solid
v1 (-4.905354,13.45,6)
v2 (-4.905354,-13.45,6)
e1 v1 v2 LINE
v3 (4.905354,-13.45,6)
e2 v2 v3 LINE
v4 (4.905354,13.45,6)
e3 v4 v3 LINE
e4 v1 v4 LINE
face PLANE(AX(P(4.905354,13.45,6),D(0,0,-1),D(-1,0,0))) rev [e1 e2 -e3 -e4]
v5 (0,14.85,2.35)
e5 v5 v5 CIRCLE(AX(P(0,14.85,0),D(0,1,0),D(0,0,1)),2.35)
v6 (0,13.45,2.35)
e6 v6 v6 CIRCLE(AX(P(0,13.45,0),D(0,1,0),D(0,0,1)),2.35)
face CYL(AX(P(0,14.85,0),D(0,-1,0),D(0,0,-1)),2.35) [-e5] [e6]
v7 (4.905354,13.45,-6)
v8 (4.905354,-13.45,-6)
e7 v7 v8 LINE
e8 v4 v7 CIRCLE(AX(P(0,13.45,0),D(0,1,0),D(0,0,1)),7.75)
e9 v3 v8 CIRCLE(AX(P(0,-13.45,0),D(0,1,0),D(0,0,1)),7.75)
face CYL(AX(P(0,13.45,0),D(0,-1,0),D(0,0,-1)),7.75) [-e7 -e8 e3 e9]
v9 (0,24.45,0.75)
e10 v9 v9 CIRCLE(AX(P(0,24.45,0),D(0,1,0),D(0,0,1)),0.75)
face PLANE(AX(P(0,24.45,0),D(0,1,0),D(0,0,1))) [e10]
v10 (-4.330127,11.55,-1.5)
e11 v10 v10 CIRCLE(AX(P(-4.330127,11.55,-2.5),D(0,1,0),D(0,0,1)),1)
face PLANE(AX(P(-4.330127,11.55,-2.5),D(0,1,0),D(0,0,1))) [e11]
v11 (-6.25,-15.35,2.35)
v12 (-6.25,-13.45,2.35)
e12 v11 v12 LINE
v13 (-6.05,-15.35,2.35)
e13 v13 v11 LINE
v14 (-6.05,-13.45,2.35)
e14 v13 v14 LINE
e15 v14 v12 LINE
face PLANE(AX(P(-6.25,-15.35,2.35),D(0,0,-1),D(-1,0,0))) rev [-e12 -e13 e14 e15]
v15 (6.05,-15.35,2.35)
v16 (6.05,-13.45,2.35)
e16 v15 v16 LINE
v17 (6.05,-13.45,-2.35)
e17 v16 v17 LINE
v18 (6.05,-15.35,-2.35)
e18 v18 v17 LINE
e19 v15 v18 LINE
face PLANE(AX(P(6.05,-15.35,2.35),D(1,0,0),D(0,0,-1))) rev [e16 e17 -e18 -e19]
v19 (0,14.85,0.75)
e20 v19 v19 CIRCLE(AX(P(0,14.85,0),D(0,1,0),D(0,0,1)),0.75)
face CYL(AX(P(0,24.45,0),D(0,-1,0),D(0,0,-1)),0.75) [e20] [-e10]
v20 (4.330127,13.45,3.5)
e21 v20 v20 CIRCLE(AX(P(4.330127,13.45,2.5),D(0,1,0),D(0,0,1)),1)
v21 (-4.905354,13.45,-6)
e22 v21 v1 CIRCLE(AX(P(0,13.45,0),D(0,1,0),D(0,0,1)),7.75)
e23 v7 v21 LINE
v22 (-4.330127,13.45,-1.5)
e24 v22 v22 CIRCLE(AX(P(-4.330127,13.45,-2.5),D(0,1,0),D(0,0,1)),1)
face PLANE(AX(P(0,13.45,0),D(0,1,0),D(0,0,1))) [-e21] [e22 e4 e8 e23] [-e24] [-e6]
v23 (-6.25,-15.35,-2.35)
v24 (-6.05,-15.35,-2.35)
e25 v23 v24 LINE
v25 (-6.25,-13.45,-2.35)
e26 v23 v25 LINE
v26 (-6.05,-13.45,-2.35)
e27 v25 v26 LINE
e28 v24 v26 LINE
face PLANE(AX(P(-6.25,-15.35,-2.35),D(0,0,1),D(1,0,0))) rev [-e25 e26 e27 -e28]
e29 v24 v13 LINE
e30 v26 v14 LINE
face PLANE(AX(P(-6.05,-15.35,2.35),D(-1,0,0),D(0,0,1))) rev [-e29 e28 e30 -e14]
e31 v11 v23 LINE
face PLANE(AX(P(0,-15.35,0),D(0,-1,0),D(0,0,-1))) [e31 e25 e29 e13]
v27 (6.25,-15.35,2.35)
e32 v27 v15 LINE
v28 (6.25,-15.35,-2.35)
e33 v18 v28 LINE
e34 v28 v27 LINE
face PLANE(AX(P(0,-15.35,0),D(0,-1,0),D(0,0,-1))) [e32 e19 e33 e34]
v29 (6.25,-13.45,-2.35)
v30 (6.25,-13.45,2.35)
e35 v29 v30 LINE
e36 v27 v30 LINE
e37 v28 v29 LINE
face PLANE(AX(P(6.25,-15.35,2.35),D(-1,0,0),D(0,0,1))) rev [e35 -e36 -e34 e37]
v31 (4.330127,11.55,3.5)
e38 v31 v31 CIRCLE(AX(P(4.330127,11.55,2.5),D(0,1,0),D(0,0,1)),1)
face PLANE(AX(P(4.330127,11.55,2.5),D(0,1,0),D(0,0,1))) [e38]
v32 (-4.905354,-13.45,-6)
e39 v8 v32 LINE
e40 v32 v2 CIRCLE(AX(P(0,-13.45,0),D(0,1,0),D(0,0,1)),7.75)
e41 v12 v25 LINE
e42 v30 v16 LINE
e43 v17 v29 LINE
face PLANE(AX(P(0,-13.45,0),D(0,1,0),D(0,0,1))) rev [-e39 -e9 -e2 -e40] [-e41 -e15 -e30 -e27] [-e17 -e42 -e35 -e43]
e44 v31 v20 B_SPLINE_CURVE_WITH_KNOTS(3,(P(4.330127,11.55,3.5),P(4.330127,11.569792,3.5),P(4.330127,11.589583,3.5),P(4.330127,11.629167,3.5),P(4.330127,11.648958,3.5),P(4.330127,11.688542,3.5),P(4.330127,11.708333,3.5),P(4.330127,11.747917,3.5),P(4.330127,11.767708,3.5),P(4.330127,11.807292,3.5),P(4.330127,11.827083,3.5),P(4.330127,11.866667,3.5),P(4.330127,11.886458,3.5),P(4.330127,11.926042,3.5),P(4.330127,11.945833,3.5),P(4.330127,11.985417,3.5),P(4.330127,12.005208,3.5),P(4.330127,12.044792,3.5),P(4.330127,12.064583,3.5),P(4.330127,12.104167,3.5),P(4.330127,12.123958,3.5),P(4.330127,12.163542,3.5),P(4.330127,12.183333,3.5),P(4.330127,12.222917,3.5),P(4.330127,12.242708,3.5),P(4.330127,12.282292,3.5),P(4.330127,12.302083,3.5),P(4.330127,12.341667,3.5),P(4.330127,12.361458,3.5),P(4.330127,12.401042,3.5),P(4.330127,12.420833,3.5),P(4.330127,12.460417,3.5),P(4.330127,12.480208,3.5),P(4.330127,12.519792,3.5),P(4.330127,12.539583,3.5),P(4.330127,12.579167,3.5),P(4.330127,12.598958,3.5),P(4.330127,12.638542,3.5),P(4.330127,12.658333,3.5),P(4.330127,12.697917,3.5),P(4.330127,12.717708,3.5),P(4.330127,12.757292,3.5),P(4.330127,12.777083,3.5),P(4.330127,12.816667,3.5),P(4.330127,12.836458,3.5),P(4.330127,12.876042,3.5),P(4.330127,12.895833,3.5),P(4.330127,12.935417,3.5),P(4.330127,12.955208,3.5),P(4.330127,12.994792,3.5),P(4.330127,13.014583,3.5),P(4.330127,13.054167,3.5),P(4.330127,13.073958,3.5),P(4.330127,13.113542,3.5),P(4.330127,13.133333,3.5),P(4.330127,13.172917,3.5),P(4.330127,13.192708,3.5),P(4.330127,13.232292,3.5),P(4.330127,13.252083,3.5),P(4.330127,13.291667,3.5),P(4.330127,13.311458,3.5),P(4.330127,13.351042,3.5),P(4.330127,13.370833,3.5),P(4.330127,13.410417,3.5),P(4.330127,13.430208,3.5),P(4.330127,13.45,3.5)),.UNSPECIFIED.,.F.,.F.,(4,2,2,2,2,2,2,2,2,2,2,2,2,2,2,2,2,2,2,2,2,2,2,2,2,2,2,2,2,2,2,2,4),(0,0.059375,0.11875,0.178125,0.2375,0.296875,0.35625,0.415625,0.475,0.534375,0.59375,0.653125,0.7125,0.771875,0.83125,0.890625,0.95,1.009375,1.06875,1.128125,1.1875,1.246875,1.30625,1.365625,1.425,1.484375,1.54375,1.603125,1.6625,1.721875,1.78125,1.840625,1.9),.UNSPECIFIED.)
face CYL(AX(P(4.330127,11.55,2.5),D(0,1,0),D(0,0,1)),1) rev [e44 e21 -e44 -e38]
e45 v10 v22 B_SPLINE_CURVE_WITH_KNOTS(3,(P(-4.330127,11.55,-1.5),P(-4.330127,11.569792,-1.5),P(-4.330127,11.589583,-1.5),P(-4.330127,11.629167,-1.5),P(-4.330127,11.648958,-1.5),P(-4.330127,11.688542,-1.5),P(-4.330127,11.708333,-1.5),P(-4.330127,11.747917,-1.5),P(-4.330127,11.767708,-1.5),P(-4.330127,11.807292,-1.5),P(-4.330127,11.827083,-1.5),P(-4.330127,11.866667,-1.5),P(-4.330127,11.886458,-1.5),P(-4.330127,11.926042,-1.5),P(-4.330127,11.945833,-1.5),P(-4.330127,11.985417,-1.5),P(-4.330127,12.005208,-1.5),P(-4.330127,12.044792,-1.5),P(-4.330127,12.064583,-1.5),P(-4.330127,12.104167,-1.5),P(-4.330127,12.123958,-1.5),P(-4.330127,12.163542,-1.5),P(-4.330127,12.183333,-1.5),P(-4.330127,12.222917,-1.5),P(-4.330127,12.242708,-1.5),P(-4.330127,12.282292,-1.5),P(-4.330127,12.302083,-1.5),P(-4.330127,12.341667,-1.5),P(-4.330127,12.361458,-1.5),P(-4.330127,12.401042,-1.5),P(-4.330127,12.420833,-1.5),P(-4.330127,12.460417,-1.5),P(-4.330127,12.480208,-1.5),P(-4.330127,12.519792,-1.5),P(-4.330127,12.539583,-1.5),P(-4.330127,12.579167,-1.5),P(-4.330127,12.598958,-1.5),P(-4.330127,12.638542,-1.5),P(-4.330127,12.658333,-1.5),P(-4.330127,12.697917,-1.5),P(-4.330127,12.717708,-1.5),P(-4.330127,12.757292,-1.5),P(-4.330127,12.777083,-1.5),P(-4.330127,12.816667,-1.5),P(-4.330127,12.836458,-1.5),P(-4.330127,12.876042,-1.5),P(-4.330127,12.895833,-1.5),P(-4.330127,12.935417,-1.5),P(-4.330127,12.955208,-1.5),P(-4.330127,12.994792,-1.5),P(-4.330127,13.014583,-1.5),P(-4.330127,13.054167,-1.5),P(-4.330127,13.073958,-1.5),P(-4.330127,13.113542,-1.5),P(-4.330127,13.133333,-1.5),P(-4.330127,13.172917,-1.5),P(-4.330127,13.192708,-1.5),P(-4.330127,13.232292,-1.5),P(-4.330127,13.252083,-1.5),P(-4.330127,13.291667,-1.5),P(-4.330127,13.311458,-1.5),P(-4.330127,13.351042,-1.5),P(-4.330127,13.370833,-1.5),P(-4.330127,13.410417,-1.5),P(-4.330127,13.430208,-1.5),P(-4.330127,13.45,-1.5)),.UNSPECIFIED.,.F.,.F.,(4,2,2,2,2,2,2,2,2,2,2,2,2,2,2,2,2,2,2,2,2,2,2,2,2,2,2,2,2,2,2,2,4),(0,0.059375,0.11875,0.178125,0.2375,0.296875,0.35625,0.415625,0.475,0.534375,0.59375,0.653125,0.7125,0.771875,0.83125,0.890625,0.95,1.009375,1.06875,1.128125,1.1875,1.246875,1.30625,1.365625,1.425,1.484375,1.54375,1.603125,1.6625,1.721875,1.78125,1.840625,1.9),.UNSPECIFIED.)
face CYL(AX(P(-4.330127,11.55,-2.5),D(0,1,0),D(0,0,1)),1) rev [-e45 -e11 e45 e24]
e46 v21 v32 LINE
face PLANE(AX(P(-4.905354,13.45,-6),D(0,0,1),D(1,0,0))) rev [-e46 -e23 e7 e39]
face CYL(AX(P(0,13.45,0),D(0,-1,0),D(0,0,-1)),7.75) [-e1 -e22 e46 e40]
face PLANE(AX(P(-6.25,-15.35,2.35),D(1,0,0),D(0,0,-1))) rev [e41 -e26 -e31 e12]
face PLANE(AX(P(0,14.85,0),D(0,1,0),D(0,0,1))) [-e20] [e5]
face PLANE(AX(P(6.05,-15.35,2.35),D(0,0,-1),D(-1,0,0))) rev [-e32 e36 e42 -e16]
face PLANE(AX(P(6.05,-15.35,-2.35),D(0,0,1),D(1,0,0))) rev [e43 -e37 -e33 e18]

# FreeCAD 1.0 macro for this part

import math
import FreeCAD as App
import Part
import Sketcher

V = App.Vector
Q = App.Units.Quantity


def add_polygon(sketch, points):
    """Adds a closed chain of lines whose ends are joined by coincident constraints."""
    first, n = sketch.GeometryCount, len(points)
    for a, b in zip(points, points[1:] + points[:1]):
        sketch.addGeometry(Part.LineSegment(App.Vector(*a, 0), App.Vector(*b, 0)), False)
    for i in range(n):
        sketch.addConstraint(Sketcher.Constraint("Coincident", first + i, 2, first + (i + 1) % n, 1))

doc = App.newDocument("Part")
body = doc.addObject("PartDesign::Body", "Body")

# Sketch on XZ plane
sketch1 = body.newObject("Sketcher::SketchObject", "Sketch")
sketch1.AttachmentSupport = (doc.getObject("XZ_Plane"), [""])
sketch1.MapMode = "FlatFace"
sketch1.addGeometry(Part.LineSegment(V(5, -6, 0), V(-5, -6, 0)), False)
sketch1.addGeometry(Part.ArcOfCircle(Part.Circle(V(0, 0, 0), V(0, 0, 1), 8), math.radians(129), math.radians(231)), False)
sketch1.addGeometry(Part.LineSegment(V(-5, 6, 0), V(5, 6, 0)), False)
sketch1.addGeometry(Part.ArcOfCircle(Part.Circle(V(0, 0, 0), V(0, 0, 1), 8), math.radians(-51), math.radians(51)), False)
sketch1.addConstraint(Sketcher.Constraint("Coincident", 0, 2, 1, 2))
sketch1.addConstraint(Sketcher.Constraint("Coincident", 1, 1, 2, 1))
sketch1.addConstraint(Sketcher.Constraint("Coincident", 2, 2, 3, 2))
sketch1.addConstraint(Sketcher.Constraint("Coincident", 3, 1, 0, 1))
sketch1.addConstraint(Sketcher.Constraint("Horizontal", 0))
sketch1.addConstraint(Sketcher.Constraint("Horizontal", 2))
sketch1.addConstraint(Sketcher.Constraint("Coincident", 1, 3, -1, 1))
sketch1.addConstraint(Sketcher.Constraint("Coincident", 3, 3, -1, 1))
sketch1.addConstraint(Sketcher.Constraint("Equal", 1, 3))
sketch1.addConstraint(Sketcher.Constraint("Vertical", 0, 2, 1, 1))
sketch1.addConstraint(Sketcher.Constraint("Radius", 1, Q("7.75 mm")))
sketch1.addConstraint(Sketcher.Constraint("DistanceY", 0, 2, -1, 1, Q("6 mm")))
pad1 = body.newObject("PartDesign::Pad", "Pad")
pad1.Profile = sketch1
pad1.Length = 26.9
pad1.Midplane = True

# Sketch on XZ plane
sketch2 = body.newObject("Sketcher::SketchObject", "Sketch001")
sketch2.AttachmentSupport = (doc.getObject("XZ_Plane"), [""])
sketch2.MapMode = "FlatFace"
sketch2.AttachmentOffset = App.Placement(V(0, 0, -13.45), App.Rotation())
sketch2.addGeometry(Part.Circle(V(0, 0, 0), V(0, 0, 1), 2.4), False)
sketch2.addConstraint(Sketcher.Constraint("Coincident", 0, 3, -1, 1))
sketch2.addConstraint(Sketcher.Constraint("Diameter", 0, Q("4.7 mm")))
pad2 = body.newObject("PartDesign::Pad", "Pad001")
pad2.Profile = sketch2
pad2.Length = 1.4
pad2.Reversed = True

# Sketch on XZ plane
sketch3 = body.newObject("Sketcher::SketchObject", "Sketch002")
sketch3.AttachmentSupport = (doc.getObject("XZ_Plane"), [""])
sketch3.MapMode = "FlatFace"
sketch3.AttachmentOffset = App.Placement(V(0, 0, -14.85), App.Rotation())
sketch3.addGeometry(Part.Circle(V(0, 0, 0), V(0, 0, 1), 0.8), False)
sketch3.addConstraint(Sketcher.Constraint("Coincident", 0, 3, -1, 1))
sketch3.addConstraint(Sketcher.Constraint("Diameter", 0, Q("1.5 mm")))
pad3 = body.newObject("PartDesign::Pad", "Pad002")
pad3.Profile = sketch3
pad3.Length = 9.6
pad3.Reversed = True

# Sketch on XZ plane
sketch4 = body.newObject("Sketcher::SketchObject", "Sketch003")
sketch4.AttachmentSupport = (doc.getObject("XZ_Plane"), [""])
sketch4.MapMode = "FlatFace"
sketch4.AttachmentOffset = App.Placement(V(0, 0, 13.45), App.Rotation())
add_polygon(sketch4, [(-6.25, 2.35), (-6.25, -2.35), (-6.05, -2.35), (-6.05, 2.35)])  # lines 0-3
add_polygon(sketch4, [(6.05, 2.35), (6.05, -2.35), (6.25, -2.35), (6.25, 2.35)])  # lines 4-7
sketch4.addConstraint(Sketcher.Constraint("Vertical", 0))
sketch4.addConstraint(Sketcher.Constraint("Horizontal", 1))
sketch4.addConstraint(Sketcher.Constraint("Vertical", 2))
sketch4.addConstraint(Sketcher.Constraint("Horizontal", 3))
sketch4.addConstraint(Sketcher.Constraint("Vertical", 4))
sketch4.addConstraint(Sketcher.Constraint("Horizontal", 5))
sketch4.addConstraint(Sketcher.Constraint("Vertical", 6))
sketch4.addConstraint(Sketcher.Constraint("Horizontal", 7))
sketch4.addConstraint(Sketcher.Constraint("Symmetric", 2, 2, 4, 2, -1, 1))
sketch4.addConstraint(Sketcher.Constraint("Symmetric", 0, 2, 6, 2, -1, 1))
sketch4.addConstraint(Sketcher.Constraint("Horizontal", 1, 2, 4, 2))
sketch4.addConstraint(Sketcher.Constraint("DistanceX", 1, 1, 1, 2, Q("0.2 mm")))
sketch4.addConstraint(Sketcher.Constraint("DistanceY", 0, 2, 0, 1, Q("4.7 mm")))
sketch4.addConstraint(Sketcher.Constraint("DistanceX", 1, 2, 4, 2, Q("12.1 mm")))
pad4 = body.newObject("PartDesign::Pad", "Pad003")
pad4.Profile = sketch4
pad4.Length = 1.9

# Sketch on XZ plane
sketch5 = body.newObject("Sketcher::SketchObject", "Sketch004")
sketch5.AttachmentSupport = (doc.getObject("XZ_Plane"), [""])
sketch5.MapMode = "FlatFace"
sketch5.AttachmentOffset = App.Placement(V(0, 0, -13.45), App.Rotation())
sketch5.addGeometry(Part.Circle(V(-4.3, -2.5, 0), V(0, 0, 1), 1), False)
sketch5.addGeometry(Part.Circle(V(4.3, 2.5, 0), V(0, 0, 1), 1), False)
sketch5.addConstraint(Sketcher.Constraint("Equal", 0, 1))
sketch5.addConstraint(Sketcher.Constraint("Symmetric", 0, 3, 1, 3, -1, 1))
sketch5.addConstraint(Sketcher.Constraint("Diameter", 0, Q("2 mm")))
sketch5.addConstraint(Sketcher.Constraint("DistanceY", 0, 3, 1, 3, Q("5 mm")))
sketch5.addConstraint(Sketcher.Constraint("DistanceX", 0, 3, -1, 1, Q("4.330127 mm")))
pocket1 = body.newObject("PartDesign::Pocket", "Pocket")
pocket1.Profile = sketch5
pocket1.Length = 1.9
pocket1.Reversed = True

doc.recompute()
